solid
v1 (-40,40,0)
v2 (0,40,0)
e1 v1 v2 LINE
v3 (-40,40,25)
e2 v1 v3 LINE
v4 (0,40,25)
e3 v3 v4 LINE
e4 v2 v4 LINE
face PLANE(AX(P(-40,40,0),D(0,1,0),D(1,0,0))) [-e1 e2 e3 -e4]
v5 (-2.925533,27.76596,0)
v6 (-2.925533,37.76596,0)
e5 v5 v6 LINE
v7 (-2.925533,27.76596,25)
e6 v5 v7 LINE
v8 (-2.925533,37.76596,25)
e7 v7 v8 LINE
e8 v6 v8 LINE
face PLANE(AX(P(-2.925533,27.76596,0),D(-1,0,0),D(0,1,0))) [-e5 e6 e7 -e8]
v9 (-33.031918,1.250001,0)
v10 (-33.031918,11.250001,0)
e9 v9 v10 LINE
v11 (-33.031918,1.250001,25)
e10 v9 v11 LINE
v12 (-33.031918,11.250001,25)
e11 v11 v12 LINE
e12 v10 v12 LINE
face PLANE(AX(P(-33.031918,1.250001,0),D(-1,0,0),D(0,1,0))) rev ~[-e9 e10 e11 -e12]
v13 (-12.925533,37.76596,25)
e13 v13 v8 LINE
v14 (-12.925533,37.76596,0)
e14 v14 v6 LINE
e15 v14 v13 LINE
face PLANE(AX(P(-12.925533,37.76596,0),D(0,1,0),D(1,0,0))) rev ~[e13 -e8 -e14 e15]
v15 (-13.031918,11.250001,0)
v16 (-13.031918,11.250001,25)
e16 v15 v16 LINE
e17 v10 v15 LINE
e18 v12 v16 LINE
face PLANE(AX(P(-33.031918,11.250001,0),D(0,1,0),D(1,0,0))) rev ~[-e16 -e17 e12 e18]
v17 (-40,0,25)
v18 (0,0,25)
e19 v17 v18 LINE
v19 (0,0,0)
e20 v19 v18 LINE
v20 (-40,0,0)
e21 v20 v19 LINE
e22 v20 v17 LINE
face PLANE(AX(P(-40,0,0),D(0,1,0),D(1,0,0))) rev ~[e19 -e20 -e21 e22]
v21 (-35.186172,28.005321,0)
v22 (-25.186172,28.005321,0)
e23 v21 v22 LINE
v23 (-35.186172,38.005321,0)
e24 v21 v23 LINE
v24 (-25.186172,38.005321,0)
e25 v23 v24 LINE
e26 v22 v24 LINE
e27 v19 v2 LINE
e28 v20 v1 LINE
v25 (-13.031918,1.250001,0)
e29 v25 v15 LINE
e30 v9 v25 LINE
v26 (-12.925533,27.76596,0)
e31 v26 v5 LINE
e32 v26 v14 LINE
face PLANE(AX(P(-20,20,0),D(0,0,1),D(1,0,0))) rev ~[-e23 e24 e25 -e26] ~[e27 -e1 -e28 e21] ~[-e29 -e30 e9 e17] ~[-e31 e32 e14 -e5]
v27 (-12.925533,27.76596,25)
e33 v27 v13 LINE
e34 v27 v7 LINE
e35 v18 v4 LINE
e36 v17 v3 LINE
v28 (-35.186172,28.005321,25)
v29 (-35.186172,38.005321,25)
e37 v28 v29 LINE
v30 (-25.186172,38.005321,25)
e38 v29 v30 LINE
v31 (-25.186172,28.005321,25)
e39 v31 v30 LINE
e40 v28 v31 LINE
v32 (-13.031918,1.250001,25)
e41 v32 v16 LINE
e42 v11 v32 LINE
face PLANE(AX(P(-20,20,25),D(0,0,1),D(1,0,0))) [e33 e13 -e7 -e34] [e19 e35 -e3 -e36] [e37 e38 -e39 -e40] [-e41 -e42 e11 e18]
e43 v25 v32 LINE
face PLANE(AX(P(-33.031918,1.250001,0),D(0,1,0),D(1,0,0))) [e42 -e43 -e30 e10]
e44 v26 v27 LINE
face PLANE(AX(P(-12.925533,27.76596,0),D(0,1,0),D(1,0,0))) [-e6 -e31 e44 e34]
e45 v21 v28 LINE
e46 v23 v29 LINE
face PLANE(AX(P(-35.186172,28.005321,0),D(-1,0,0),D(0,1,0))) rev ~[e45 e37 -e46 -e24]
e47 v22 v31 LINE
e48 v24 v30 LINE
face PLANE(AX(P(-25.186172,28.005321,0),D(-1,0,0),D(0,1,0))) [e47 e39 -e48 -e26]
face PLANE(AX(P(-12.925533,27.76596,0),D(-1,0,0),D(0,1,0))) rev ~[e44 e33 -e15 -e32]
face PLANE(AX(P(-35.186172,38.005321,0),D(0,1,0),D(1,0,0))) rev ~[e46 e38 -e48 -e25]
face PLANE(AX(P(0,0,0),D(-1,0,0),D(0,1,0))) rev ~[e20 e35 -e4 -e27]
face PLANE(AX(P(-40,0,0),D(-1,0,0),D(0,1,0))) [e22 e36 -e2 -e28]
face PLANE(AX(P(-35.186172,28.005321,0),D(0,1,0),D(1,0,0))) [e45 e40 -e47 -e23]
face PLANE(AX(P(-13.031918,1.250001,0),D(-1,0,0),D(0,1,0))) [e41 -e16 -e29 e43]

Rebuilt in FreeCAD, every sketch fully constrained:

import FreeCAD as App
import Part
import Sketcher

V = App.Vector
Q = App.Units.Quantity

doc = App.newDocument("Part")
body = doc.addObject("PartDesign::Body", "Body")

# Sketch on XY plane
sketch1 = doc.addObject("Sketcher::SketchObject", "Sketch")
body.addObject(sketch1)
sketch1.AttachmentSupport = (doc.XY_Plane, [""])
sketch1.MapMode = "FlatFace"
sketch1.addGeometry([
    Part.LineSegment(V(-40, 40, 0), V(-40, 0, 0)),  # 0
    Part.LineSegment(V(-40, 0, 0), V(0, 0, 0)),  # 1
    Part.LineSegment(V(0, 0, 0), V(0, 40, 0)),  # 2
    Part.LineSegment(V(0, 40, 0), V(-40, 40, 0)),  # 3
    Part.LineSegment(V(-13.031918, 1.250001, 0), V(-33.031918, 1.250001, 0)),  # 4
    Part.LineSegment(V(-33.031918, 1.250001, 0), V(-33.031918, 11.250001, 0)),  # 5
    Part.LineSegment(V(-33.031918, 11.250001, 0), V(-13.031918, 11.250001, 0)),  # 6
    Part.LineSegment(V(-13.031918, 11.250001, 0), V(-13.031918, 1.250001, 0)),  # 7
    Part.LineSegment(V(-25.186172, 28.005321, 0), V(-35.186172, 28.005321, 0)),  # 8
    Part.LineSegment(V(-35.186172, 28.005321, 0), V(-35.186172, 38.005321, 0)),  # 9
    Part.LineSegment(V(-35.186172, 38.005321, 0), V(-25.186172, 38.005321, 0)),  # 10
    Part.LineSegment(V(-25.186172, 38.005321, 0), V(-25.186172, 28.005321, 0)),  # 11
    Part.LineSegment(V(-2.925533, 27.76596, 0), V(-12.925533, 27.76596, 0)),  # 12
    Part.LineSegment(V(-12.925533, 27.76596, 0), V(-12.925533, 37.76596, 0)),  # 13
    Part.LineSegment(V(-12.925533, 37.76596, 0), V(-2.925533, 37.76596, 0)),  # 14
    Part.LineSegment(V(-2.925533, 37.76596, 0), V(-2.925533, 27.76596, 0)),  # 15
], False)
sketch1.addConstraint([
    Sketcher.Constraint("Coincident", 0, 2, 1, 1),
    Sketcher.Constraint("Coincident", 1, 2, 2, 1),
    Sketcher.Constraint("Coincident", 2, 2, 3, 1),
    Sketcher.Constraint("Coincident", 3, 2, 0, 1),
    Sketcher.Constraint("Coincident", 4, 2, 5, 1),
    Sketcher.Constraint("Coincident", 5, 2, 6, 1),
    Sketcher.Constraint("Coincident", 6, 2, 7, 1),
    Sketcher.Constraint("Coincident", 7, 2, 4, 1),
    Sketcher.Constraint("Coincident", 8, 2, 9, 1),
    Sketcher.Constraint("Coincident", 9, 2, 10, 1),
    Sketcher.Constraint("Coincident", 10, 2, 11, 1),
    Sketcher.Constraint("Coincident", 11, 2, 8, 1),
    Sketcher.Constraint("Coincident", 12, 2, 13, 1),
    Sketcher.Constraint("Coincident", 13, 2, 14, 1),
    Sketcher.Constraint("Coincident", 14, 2, 15, 1),
    Sketcher.Constraint("Coincident", 15, 2, 12, 1),
    Sketcher.Constraint("Vertical", 0),
    Sketcher.Constraint("Horizontal", 1),
    Sketcher.Constraint("Vertical", 2),
    Sketcher.Constraint("Horizontal", 3),
    Sketcher.Constraint("Horizontal", 4),
    Sketcher.Constraint("Vertical", 5),
    Sketcher.Constraint("Horizontal", 6),
    Sketcher.Constraint("Vertical", 7),
    Sketcher.Constraint("Horizontal", 8),
    Sketcher.Constraint("Vertical", 9),
    Sketcher.Constraint("Horizontal", 10),
    Sketcher.Constraint("Vertical", 11),
    Sketcher.Constraint("Horizontal", 12),
    Sketcher.Constraint("Vertical", 13),
    Sketcher.Constraint("Horizontal", 14),
    Sketcher.Constraint("Vertical", 15),
    Sketcher.Constraint("Coincident", 1, 2, -1, 1),
    Sketcher.Constraint("Equal", 10, 12),
    Sketcher.Constraint("Equal", 3, 0),
    Sketcher.Constraint("Equal", 14, 5),
    Sketcher.Constraint("Equal", 7, 9),
    Sketcher.Constraint("Equal", 11, 13),
    Sketcher.Constraint("DistanceX", 1, 1, 1, 2, Q("40 mm")),
    Sketcher.Constraint("DistanceX", 4, 2, 4, 1, Q("20 mm")),
    Sketcher.Constraint("DistanceX", 8, 2, 8, 1, Q("10 mm")),
    Sketcher.Constraint("DistanceY", -1, 1, 4, 2, Q("1.250001 mm")),
    Sketcher.Constraint("DistanceY", -1, 1, 8, 2, Q("28.005321 mm")),
    Sketcher.Constraint("DistanceX", 10, 2, -1, 1, Q("25.186172 mm")),
    Sketcher.Constraint("DistanceY", -1, 1, 12, 2, Q("27.76596 mm")),
    Sketcher.Constraint("DistanceX", 11, 2, 12, 2, Q("12.260639 mm")),
    Sketcher.Constraint("DistanceX", 4, 2, -1, 1, Q("33.031918 mm")),
])
pad1 = doc.addObject("PartDesign::Pad", "Pad")
body.addObject(pad1)
pad1.Profile = sketch1
pad1.Length = 25

doc.recompute()
